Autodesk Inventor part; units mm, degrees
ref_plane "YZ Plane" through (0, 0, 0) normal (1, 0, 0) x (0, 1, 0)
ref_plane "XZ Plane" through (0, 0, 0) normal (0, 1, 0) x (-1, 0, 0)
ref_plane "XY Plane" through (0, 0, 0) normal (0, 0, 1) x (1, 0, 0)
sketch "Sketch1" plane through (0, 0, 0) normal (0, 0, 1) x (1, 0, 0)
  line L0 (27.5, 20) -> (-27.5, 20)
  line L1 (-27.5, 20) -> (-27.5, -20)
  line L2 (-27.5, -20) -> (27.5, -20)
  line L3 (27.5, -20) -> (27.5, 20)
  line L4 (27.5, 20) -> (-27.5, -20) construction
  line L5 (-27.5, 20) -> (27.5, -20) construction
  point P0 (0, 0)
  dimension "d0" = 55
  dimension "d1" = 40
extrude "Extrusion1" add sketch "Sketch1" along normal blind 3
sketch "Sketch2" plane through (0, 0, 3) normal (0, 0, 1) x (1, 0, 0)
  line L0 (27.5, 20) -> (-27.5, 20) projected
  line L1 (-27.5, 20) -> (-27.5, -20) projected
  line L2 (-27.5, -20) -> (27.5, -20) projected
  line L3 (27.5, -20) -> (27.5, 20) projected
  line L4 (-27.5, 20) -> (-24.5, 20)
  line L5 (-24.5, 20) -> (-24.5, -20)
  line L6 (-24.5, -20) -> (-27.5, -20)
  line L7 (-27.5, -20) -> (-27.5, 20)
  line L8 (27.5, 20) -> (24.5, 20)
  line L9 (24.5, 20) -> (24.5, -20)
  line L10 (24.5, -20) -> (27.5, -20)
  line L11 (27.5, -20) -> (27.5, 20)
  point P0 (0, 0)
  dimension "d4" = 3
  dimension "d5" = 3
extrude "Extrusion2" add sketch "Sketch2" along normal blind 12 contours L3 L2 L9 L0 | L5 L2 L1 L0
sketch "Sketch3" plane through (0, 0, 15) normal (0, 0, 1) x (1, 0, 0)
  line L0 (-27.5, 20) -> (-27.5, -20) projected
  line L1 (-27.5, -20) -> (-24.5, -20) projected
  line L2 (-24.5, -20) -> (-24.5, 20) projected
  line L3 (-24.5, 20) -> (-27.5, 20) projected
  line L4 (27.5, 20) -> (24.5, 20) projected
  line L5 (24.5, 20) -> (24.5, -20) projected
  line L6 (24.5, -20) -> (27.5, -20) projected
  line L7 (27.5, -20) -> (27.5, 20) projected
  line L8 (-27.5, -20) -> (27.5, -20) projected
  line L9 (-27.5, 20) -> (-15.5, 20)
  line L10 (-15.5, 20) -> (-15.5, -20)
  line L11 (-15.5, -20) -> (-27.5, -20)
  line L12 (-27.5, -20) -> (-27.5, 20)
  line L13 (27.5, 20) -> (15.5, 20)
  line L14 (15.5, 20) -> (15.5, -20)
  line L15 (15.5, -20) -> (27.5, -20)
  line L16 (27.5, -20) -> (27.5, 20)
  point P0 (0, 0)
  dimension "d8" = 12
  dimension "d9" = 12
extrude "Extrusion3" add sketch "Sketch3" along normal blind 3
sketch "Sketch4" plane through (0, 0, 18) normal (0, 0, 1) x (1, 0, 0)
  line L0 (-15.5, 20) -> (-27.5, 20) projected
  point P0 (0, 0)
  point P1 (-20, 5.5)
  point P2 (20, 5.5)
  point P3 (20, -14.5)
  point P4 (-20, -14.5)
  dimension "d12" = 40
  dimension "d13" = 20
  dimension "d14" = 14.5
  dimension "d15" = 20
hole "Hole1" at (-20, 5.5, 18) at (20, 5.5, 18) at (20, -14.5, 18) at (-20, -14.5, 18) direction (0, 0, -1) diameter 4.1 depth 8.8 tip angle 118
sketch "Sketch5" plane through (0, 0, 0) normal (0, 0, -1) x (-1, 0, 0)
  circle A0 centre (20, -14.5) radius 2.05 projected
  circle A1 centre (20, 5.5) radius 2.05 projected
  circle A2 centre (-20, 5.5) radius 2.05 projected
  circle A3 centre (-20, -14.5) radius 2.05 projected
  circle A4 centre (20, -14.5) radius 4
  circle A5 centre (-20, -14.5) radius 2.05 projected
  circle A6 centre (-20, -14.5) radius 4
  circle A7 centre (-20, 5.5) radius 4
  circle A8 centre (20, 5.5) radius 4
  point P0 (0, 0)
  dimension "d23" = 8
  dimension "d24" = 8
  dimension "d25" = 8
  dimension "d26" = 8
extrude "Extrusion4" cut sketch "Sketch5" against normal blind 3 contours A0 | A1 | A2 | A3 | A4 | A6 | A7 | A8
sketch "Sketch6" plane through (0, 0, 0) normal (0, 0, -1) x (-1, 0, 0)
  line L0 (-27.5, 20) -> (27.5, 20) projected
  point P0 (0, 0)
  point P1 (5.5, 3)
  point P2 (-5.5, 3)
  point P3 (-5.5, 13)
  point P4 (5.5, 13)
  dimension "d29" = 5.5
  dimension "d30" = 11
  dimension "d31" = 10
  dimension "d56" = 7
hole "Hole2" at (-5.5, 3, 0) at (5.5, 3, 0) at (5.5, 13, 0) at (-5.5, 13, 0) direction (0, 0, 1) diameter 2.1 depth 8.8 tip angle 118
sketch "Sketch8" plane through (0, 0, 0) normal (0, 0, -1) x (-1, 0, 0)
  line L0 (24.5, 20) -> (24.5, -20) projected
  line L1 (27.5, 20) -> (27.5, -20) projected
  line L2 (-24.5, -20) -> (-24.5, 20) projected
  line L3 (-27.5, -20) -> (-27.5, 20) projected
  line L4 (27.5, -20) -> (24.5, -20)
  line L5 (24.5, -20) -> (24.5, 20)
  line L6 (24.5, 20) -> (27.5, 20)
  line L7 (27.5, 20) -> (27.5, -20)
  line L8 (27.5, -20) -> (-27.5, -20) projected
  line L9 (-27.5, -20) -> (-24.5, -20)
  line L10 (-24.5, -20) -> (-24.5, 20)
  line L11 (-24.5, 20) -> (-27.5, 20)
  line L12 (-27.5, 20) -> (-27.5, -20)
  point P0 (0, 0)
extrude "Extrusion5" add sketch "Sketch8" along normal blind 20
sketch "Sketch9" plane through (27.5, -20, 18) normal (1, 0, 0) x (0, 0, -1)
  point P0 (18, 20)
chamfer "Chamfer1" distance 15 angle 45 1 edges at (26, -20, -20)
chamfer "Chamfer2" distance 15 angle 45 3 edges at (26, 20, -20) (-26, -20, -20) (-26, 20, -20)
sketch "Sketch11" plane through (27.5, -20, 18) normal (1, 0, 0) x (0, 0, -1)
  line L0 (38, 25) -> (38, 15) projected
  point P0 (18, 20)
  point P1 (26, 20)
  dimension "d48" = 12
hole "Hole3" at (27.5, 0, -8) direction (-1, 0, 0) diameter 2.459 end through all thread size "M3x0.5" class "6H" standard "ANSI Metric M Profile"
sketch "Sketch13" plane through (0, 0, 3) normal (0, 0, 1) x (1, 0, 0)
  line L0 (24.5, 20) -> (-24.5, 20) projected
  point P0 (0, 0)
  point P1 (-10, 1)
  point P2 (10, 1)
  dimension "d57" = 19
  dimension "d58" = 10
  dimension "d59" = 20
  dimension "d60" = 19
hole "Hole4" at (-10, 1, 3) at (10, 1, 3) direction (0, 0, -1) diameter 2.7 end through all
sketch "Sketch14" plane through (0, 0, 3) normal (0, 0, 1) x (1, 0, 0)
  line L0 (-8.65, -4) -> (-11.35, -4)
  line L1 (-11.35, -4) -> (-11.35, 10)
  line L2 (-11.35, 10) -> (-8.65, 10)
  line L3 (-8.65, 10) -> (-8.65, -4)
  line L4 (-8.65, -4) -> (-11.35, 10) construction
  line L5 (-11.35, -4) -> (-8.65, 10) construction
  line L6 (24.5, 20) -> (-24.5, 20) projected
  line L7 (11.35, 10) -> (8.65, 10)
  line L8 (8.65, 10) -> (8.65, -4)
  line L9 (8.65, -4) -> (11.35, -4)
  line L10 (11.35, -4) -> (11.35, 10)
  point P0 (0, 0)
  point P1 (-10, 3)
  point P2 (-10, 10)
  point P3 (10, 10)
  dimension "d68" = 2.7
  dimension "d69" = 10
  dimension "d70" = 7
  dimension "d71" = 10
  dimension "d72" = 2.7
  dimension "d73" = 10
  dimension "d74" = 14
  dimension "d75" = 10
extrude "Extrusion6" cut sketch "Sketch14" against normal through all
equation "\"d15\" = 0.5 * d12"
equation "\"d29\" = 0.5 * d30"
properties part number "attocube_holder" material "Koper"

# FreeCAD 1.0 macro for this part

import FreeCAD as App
import Part
import Sketcher

V = App.Vector
Q = App.Units.Quantity


def edges_at(feature, points):
    """Names of the edges that pass closest to the given points."""
    edges = feature.Shape.Edges
    near = lambda p: min(range(len(edges)), key=lambda i: edges[i].distToShape(Part.Vertex(*p))[0])
    return sorted({f"Edge{near(p) + 1}" for p in points})

doc = App.newDocument("Part")
body = doc.addObject("PartDesign::Body", "Body")

# Sketch on XY plane
sketch1 = body.newObject("Sketcher::SketchObject", "Sketch")
sketch1.AttachmentSupport = (doc.getObject("XY_Plane"), [""])
sketch1.MapMode = "FlatFace"
sketch1.addGeometry([
    Part.LineSegment(V(28, -20, 0), V(28, 20, 0)),
    Part.LineSegment(V(28, 20, 0), V(-28, 20, 0)),
    Part.LineSegment(V(-28, 20, 0), V(-28, -20, 0)),
    Part.LineSegment(V(-28, -20, 0), V(28, -20, 0)),
], False)
sketch1.addConstraint([
    Sketcher.Constraint("Coincident", 0, 2, 1, 1),
    Sketcher.Constraint("Coincident", 1, 2, 2, 1),
    Sketcher.Constraint("Coincident", 2, 2, 3, 1),
    Sketcher.Constraint("Coincident", 3, 2, 0, 1),
    Sketcher.Constraint("Vertical", 0),
    Sketcher.Constraint("Horizontal", 1),
    Sketcher.Constraint("Vertical", 2),
    Sketcher.Constraint("Horizontal", 3),
    Sketcher.Constraint("Symmetric", 0, 2, 2, 2, -1, 1),
    Sketcher.Constraint("DistanceX", 1, 2, 1, 1, Q("55 mm")),
    Sketcher.Constraint("DistanceY", 0, 1, 0, 2, Q("40 mm")),
])
pad1 = body.newObject("PartDesign::Pad", "Pad")
pad1.Profile = sketch1
pad1.Length = 3

# Sketch on XY plane
sketch2 = body.newObject("Sketcher::SketchObject", "Sketch001")
sketch2.AttachmentSupport = (doc.getObject("XY_Plane"), [""])
sketch2.MapMode = "FlatFace"
sketch2.AttachmentOffset = App.Placement(V(0, 0, 3), App.Rotation())
sketch2.addGeometry([
    Part.LineSegment(V(27.5, -20, 0), V(27.5, 20, 0)),  # 0
    Part.LineSegment(V(27.5, 20, 0), V(24.5, 20, 0)),  # 1
    Part.LineSegment(V(24.5, 20, 0), V(24.5, -20, 0)),  # 2
    Part.LineSegment(V(24.5, -20, 0), V(27.5, -20, 0)),  # 3
    Part.LineSegment(V(-24.5, -20, 0), V(-24.5, 20, 0)),  # 4
    Part.LineSegment(V(-24.5, 20, 0), V(-27.5, 20, 0)),  # 5
    Part.LineSegment(V(-27.5, 20, 0), V(-27.5, -20, 0)),  # 6
    Part.LineSegment(V(-27.5, -20, 0), V(-24.5, -20, 0)),  # 7
], False)
sketch2.addConstraint([
    Sketcher.Constraint("Coincident", 0, 2, 1, 1),
    Sketcher.Constraint("Coincident", 1, 2, 2, 1),
    Sketcher.Constraint("Coincident", 2, 2, 3, 1),
    Sketcher.Constraint("Coincident", 3, 2, 0, 1),
    Sketcher.Constraint("Coincident", 4, 2, 5, 1),
    Sketcher.Constraint("Coincident", 5, 2, 6, 1),
    Sketcher.Constraint("Coincident", 6, 2, 7, 1),
    Sketcher.Constraint("Coincident", 7, 2, 4, 1),
    Sketcher.Constraint("Vertical", 0),
    Sketcher.Constraint("Horizontal", 1),
    Sketcher.Constraint("Vertical", 2),
    Sketcher.Constraint("Horizontal", 3),
    Sketcher.Constraint("Vertical", 4),
    Sketcher.Constraint("Horizontal", 5),
    Sketcher.Constraint("Vertical", 6),
    Sketcher.Constraint("Horizontal", 7),
    Sketcher.Constraint("Symmetric", 2, 2, 4, 2, -1, 1),
    Sketcher.Constraint("Symmetric", 0, 2, 6, 2, -1, 1),
    Sketcher.Constraint("Horizontal", 1, 2, 4, 2),
    Sketcher.Constraint("DistanceX", 1, 2, 1, 1, Q("3 mm")),
    Sketcher.Constraint("DistanceY", 0, 1, 0, 2, Q("40 mm")),
    Sketcher.Constraint("DistanceX", 4, 2, 1, 2, Q("49 mm")),
])
pad2 = body.newObject("PartDesign::Pad", "Pad001")
pad2.Profile = sketch2
pad2.Length = 12

# Sketch on XY plane
sketch3 = body.newObject("Sketcher::SketchObject", "Sketch002")
sketch3.AttachmentSupport = (doc.getObject("XY_Plane"), [""])
sketch3.MapMode = "FlatFace"
sketch3.AttachmentOffset = App.Placement(V(0, 0, 15), App.Rotation())
sketch3.addGeometry([
    Part.LineSegment(V(-28, 20, 0), V(-28, -20, 0)),  # 0
    Part.LineSegment(V(-28, -20, 0), V(-16, -20, 0)),  # 1
    Part.LineSegment(V(-16, -20, 0), V(-16, 20, 0)),  # 2
    Part.LineSegment(V(-16, 20, 0), V(-28, 20, 0)),  # 3
    Part.LineSegment(V(16, 20, 0), V(16, -20, 0)),  # 4
    Part.LineSegment(V(16, -20, 0), V(28, -20, 0)),  # 5
    Part.LineSegment(V(28, -20, 0), V(28, 20, 0)),  # 6
    Part.LineSegment(V(28, 20, 0), V(16, 20, 0)),  # 7
], False)
sketch3.addConstraint([
    Sketcher.Constraint("Coincident", 0, 2, 1, 1),
    Sketcher.Constraint("Coincident", 1, 2, 2, 1),
    Sketcher.Constraint("Coincident", 2, 2, 3, 1),
    Sketcher.Constraint("Coincident", 3, 2, 0, 1),
    Sketcher.Constraint("Coincident", 4, 2, 5, 1),
    Sketcher.Constraint("Coincident", 5, 2, 6, 1),
    Sketcher.Constraint("Coincident", 6, 2, 7, 1),
    Sketcher.Constraint("Coincident", 7, 2, 4, 1),
    Sketcher.Constraint("Vertical", 0),
    Sketcher.Constraint("Horizontal", 1),
    Sketcher.Constraint("Vertical", 2),
    Sketcher.Constraint("Horizontal", 3),
    Sketcher.Constraint("Vertical", 4),
    Sketcher.Constraint("Horizontal", 5),
    Sketcher.Constraint("Vertical", 6),
    Sketcher.Constraint("Horizontal", 7),
    Sketcher.Constraint("Symmetric", 2, 2, 4, 2, -1, 1),
    Sketcher.Constraint("Symmetric", 0, 2, 6, 2, -1, 1),
    Sketcher.Constraint("Horizontal", 1, 2, 4, 2),
    Sketcher.Constraint("DistanceX", 1, 1, 1, 2, Q("12 mm")),
    Sketcher.Constraint("DistanceY", 0, 2, 0, 1, Q("40 mm")),
    Sketcher.Constraint("DistanceX", 1, 2, 4, 2, Q("31 mm")),
])
pad3 = body.newObject("PartDesign::Pad", "Pad002")
pad3.Profile = sketch3
pad3.Length = 3

# Sketch on XY plane
sketch4 = body.newObject("Sketcher::SketchObject", "Sketch003")
sketch4.AttachmentSupport = (doc.getObject("XY_Plane"), [""])
sketch4.MapMode = "FlatFace"
sketch4.AttachmentOffset = App.Placement(V(0, 0, 18), App.Rotation())
sketch4.addGeometry([
    Part.Circle(V(-20, 5.5, 0), V(0, 0, 1), 2),
    Part.Circle(V(20, 5.5, 0), V(0, 0, 1), 2),
    Part.Circle(V(20, -14.5, 0), V(0, 0, 1), 2),
    Part.Circle(V(-20, -14.5, 0), V(0, 0, 1), 2),
], False)
sketch4.addConstraint([
    Sketcher.Constraint("Equal", 0, 1),
    Sketcher.Constraint("Equal", 1, 2),
    Sketcher.Constraint("Equal", 2, 3),
    Sketcher.Constraint("Symmetric", 0, 3, 1, 3, -2),
    Sketcher.Constraint("Symmetric", 2, 3, 3, 3, -2),
    Sketcher.Constraint("Vertical", 1, 3, 2, 3),
    Sketcher.Constraint("Diameter", 0, Q("4.1 mm")),
    Sketcher.Constraint("DistanceX", 0, 3, -1, 1, Q("20 mm")),
    Sketcher.Constraint("DistanceY", 2, 3, 1, 3, Q("20 mm")),
    Sketcher.Constraint("DistanceY", -1, 1, 0, 3, Q("5.5 mm")),
])
doc.recompute()
hole = body.newObject("PartDesign::Hole", "Hole")
hole.Profile = sketch4
hole.ThreadType = "None"
hole.Diameter = 4.1
hole.DepthType = "Dimension"
hole.Depth = 8.8
hole.DrillPoint = "Angled"
hole.DrillPointAngle = 118

# Sketch on XY plane
sketch5 = body.newObject("Sketcher::SketchObject", "Sketch004")
sketch5.AttachmentSupport = (doc.getObject("XY_Plane"), [""])
sketch5.MapMode = "FlatFace"
sketch5.addGeometry([
    Part.Circle(V(-20, -14.5, 0), V(0, 0, 1), 4),
    Part.Circle(V(-20, 5.5, 0), V(0, 0, 1), 4),
    Part.Circle(V(20, 5.5, 0), V(0, 0, 1), 4),
    Part.Circle(V(20, -14.5, 0), V(0, 0, 1), 4),
], False)
sketch5.addConstraint([
    Sketcher.Constraint("Equal", 0, 1),
    Sketcher.Constraint("Equal", 1, 2),
    Sketcher.Constraint("Equal", 2, 3),
    Sketcher.Constraint("Symmetric", 1, 3, 2, 3, -2),
    Sketcher.Constraint("Symmetric", 0, 3, 3, 3, -2),
    Sketcher.Constraint("Vertical", 0, 3, 1, 3),
    Sketcher.Constraint("Diameter", 0, Q("8 mm")),
    Sketcher.Constraint("DistanceX", 0, 3, -1, 1, Q("20 mm")),
    Sketcher.Constraint("DistanceY", 0, 3, 1, 3, Q("20 mm")),
    Sketcher.Constraint("DistanceY", 0, 3, -1, 1, Q("14.5 mm")),
])
pocket1 = body.newObject("PartDesign::Pocket", "Pocket")
pocket1.Profile = sketch5
pocket1.Length = 3
pocket1.Reversed = True

# Sketch on XY plane
sketch6 = body.newObject("Sketcher::SketchObject", "Sketch005")
sketch6.AttachmentSupport = (doc.getObject("XY_Plane"), [""])
sketch6.MapMode = "FlatFace"
sketch6.addGeometry([
    Part.Circle(V(-5.5, 3, 0), V(0, 0, 1), 1.1),
    Part.Circle(V(5.5, 3, 0), V(0, 0, 1), 1.1),
    Part.Circle(V(5.5, 13, 0), V(0, 0, 1), 1.1),
    Part.Circle(V(-5.5, 13, 0), V(0, 0, 1), 1.1),
], False)
sketch6.addConstraint([
    Sketcher.Constraint("Equal", 0, 1),
    Sketcher.Constraint("Equal", 1, 2),
    Sketcher.Constraint("Equal", 2, 3),
    Sketcher.Constraint("Symmetric", 0, 3, 1, 3, -2),
    Sketcher.Constraint("Symmetric", 2, 3, 3, 3, -2),
    Sketcher.Constraint("Vertical", 1, 3, 2, 3),
    Sketcher.Constraint("Diameter", 0, Q("2.1 mm")),
    Sketcher.Constraint("DistanceY", -1, 1, 0, 3, Q("3 mm")),
    Sketcher.Constraint("DistanceY", -1, 1, 2, 3, Q("13 mm")),
    Sketcher.Constraint("DistanceX", 0, 3, 1, 3, Q("11 mm")),
])
doc.recompute()
hole2 = body.newObject("PartDesign::Hole", "Hole001")
hole2.Profile = sketch6
hole2.ThreadType = "None"
hole2.Diameter = 2.1
hole2.DepthType = "Dimension"
hole2.Depth = 8.8
hole2.DrillPoint = "Angled"
hole2.DrillPointAngle = 118
hole2.Reversed = True

# Sketch on XY plane
sketch7 = body.newObject("Sketcher::SketchObject", "Sketch006")
sketch7.AttachmentSupport = (doc.getObject("XY_Plane"), [""])
sketch7.MapMode = "FlatFace"
sketch7.addGeometry([
    Part.LineSegment(V(-27.5, 20, 0), V(-24.5, 20, 0)),  # 0
    Part.LineSegment(V(-24.5, 20, 0), V(-24.5, -20, 0)),  # 1
    Part.LineSegment(V(-24.5, -20, 0), V(-27.5, -20, 0)),  # 2
    Part.LineSegment(V(-27.5, -20, 0), V(-27.5, 20, 0)),  # 3
    Part.LineSegment(V(27.5, -20, 0), V(24.5, -20, 0)),  # 4
    Part.LineSegment(V(24.5, -20, 0), V(24.5, 20, 0)),  # 5
    Part.LineSegment(V(24.5, 20, 0), V(27.5, 20, 0)),  # 6
    Part.LineSegment(V(27.5, 20, 0), V(27.5, -20, 0)),  # 7
], False)
sketch7.addConstraint([
    Sketcher.Constraint("Coincident", 0, 2, 1, 1),
    Sketcher.Constraint("Coincident", 1, 2, 2, 1),
    Sketcher.Constraint("Coincident", 2, 2, 3, 1),
    Sketcher.Constraint("Coincident", 3, 2, 0, 1),
    Sketcher.Constraint("Coincident", 4, 2, 5, 1),
    Sketcher.Constraint("Coincident", 5, 2, 6, 1),
    Sketcher.Constraint("Coincident", 6, 2, 7, 1),
    Sketcher.Constraint("Coincident", 7, 2, 4, 1),
    Sketcher.Constraint("Horizontal", 0),
    Sketcher.Constraint("Vertical", 1),
    Sketcher.Constraint("Horizontal", 2),
    Sketcher.Constraint("Vertical", 3),
    Sketcher.Constraint("Horizontal", 4),
    Sketcher.Constraint("Vertical", 5),
    Sketcher.Constraint("Horizontal", 6),
    Sketcher.Constraint("Vertical", 7),
    Sketcher.Constraint("Symmetric", 0, 2, 4, 2, -1, 1),
    Sketcher.Constraint("Symmetric", 2, 2, 6, 2, -1, 1),
    Sketcher.Constraint("Horizontal", 2, 2, 4, 2),
    Sketcher.Constraint("DistanceX", 0, 1, 0, 2, Q("3 mm")),
    Sketcher.Constraint("DistanceY", 1, 2, 1, 1, Q("40 mm")),
    Sketcher.Constraint("DistanceX", 1, 2, 4, 2, Q("49 mm")),
])
pad4 = body.newObject("PartDesign::Pad", "Pad003")
pad4.Profile = sketch7
pad4.Length = 20
pad4.Reversed = True
doc.recompute()

chamfer = body.newObject("PartDesign::Chamfer", "Chamfer")
chamfer.Base = (pad4, edges_at(pad4, [(26, -20, -20)]))
chamfer.Size = 15
doc.recompute()

chamfer2 = body.newObject("PartDesign::Chamfer", "Chamfer001")
chamfer2.Base = (chamfer, edges_at(chamfer, [(26, 20, -20), (-26, -20, -20), (-26, 20, -20)]))
chamfer2.Size = 15

# Sketch on YZ plane
sketch8 = body.newObject("Sketcher::SketchObject", "Sketch007")
sketch8.AttachmentSupport = (doc.getObject("YZ_Plane"), [""])
sketch8.MapMode = "FlatFace"
sketch8.AttachmentOffset = App.Placement(V(0, 0, 27.5), App.Rotation())
sketch8.addGeometry(Part.Circle(V(0, -8, 0), V(0, 0, 1), 1.2), False)
sketch8.addConstraint([
    Sketcher.Constraint("PointOnObject", 0, 3, -2),
    Sketcher.Constraint("Diameter", 0, Q("2.459 mm")),
    Sketcher.Constraint("DistanceY", 0, 3, -1, 1, Q("8 mm")),
])
doc.recompute()
hole3 = body.newObject("PartDesign::Hole", "Hole002")
hole3.Profile = sketch8
hole3.ThreadType = "None"
hole3.Diameter = 2.459
hole3.DepthType = "ThroughAll"

# Sketch on XY plane
sketch9 = body.newObject("Sketcher::SketchObject", "Sketch008")
sketch9.AttachmentSupport = (doc.getObject("XY_Plane"), [""])
sketch9.MapMode = "FlatFace"
sketch9.AttachmentOffset = App.Placement(V(0, 0, 3), App.Rotation())
sketch9.addGeometry([
    Part.Circle(V(-10, 1, 0), V(0, 0, 1), 1.4),
    Part.Circle(V(10, 1, 0), V(0, 0, 1), 1.4),
], False)
sketch9.addConstraint([
    Sketcher.Constraint("Equal", 0, 1),
    Sketcher.Constraint("Symmetric", 0, 3, 1, 3, -2),
    Sketcher.Constraint("Diameter", 0, Q("2.7 mm")),
    Sketcher.Constraint("DistanceX", 0, 3, -1, 1, Q("10 mm")),
    Sketcher.Constraint("DistanceY", -1, 1, 0, 3, Q("1 mm")),
])
doc.recompute()
hole4 = body.newObject("PartDesign::Hole", "Hole003")
hole4.Profile = sketch9
hole4.ThreadType = "None"
hole4.Diameter = 2.7
hole4.DepthType = "ThroughAll"

# Sketch on XY plane
sketch10 = body.newObject("Sketcher::SketchObject", "Sketch009")
sketch10.AttachmentSupport = (doc.getObject("XY_Plane"), [""])
sketch10.MapMode = "FlatFace"
sketch10.AttachmentOffset = App.Placement(V(0, 0, 3), App.Rotation())
sketch10.addGeometry([
    Part.LineSegment(V(-11.3, -4, 0), V(-8.7, -4, 0)),  # 0
    Part.LineSegment(V(-8.7, -4, 0), V(-8.7, 10, 0)),  # 1
    Part.LineSegment(V(-8.7, 10, 0), V(-11.3, 10, 0)),  # 2
    Part.LineSegment(V(-11.3, 10, 0), V(-11.3, -4, 0)),  # 3
    Part.LineSegment(V(11.3, -4, 0), V(11.3, 10, 0)),  # 4
    Part.LineSegment(V(11.3, 10, 0), V(8.7, 10, 0)),  # 5
    Part.LineSegment(V(8.7, 10, 0), V(8.7, -4, 0)),  # 6
    Part.LineSegment(V(8.7, -4, 0), V(11.3, -4, 0)),  # 7
], False)
sketch10.addConstraint([
    Sketcher.Constraint("Coincident", 0, 2, 1, 1),
    Sketcher.Constraint("Coincident", 1, 2, 2, 1),
    Sketcher.Constraint("Coincident", 2, 2, 3, 1),
    Sketcher.Constraint("Coincident", 3, 2, 0, 1),
    Sketcher.Constraint("Coincident", 4, 2, 5, 1),
    Sketcher.Constraint("Coincident", 5, 2, 6, 1),
    Sketcher.Constraint("Coincident", 6, 2, 7, 1),
    Sketcher.Constraint("Coincident", 7, 2, 4, 1),
    Sketcher.Constraint("Horizontal", 0),
    Sketcher.Constraint("Vertical", 1),
    Sketcher.Constraint("Horizontal", 2),
    Sketcher.Constraint("Vertical", 3),
    Sketcher.Constraint("Vertical", 4),
    Sketcher.Constraint("Horizontal", 5),
    Sketcher.Constraint("Vertical", 6),
    Sketcher.Constraint("Horizontal", 7),
    Sketcher.Constraint("Symmetric", 2, 2, 4, 2, -2),
    Sketcher.Constraint("Symmetric", 0, 2, 6, 2, -2),
    Sketcher.Constraint("DistanceY", 1, 1, 1, 2, Q("14 mm")),
    Sketcher.Constraint("DistanceX", 0, 1, 0, 2, Q("2.7 mm")),
    Sketcher.Constraint("DistanceY", -1, 1, 1, 2, Q("10 mm")),
    Sketcher.Constraint("DistanceX", 1, 2, 4, 2, Q("20 mm")),
])
pocket2 = body.newObject("PartDesign::Pocket", "Pocket001")
pocket2.Profile = sketch10
pocket2.Type = "ThroughAll"

doc.recompute()
